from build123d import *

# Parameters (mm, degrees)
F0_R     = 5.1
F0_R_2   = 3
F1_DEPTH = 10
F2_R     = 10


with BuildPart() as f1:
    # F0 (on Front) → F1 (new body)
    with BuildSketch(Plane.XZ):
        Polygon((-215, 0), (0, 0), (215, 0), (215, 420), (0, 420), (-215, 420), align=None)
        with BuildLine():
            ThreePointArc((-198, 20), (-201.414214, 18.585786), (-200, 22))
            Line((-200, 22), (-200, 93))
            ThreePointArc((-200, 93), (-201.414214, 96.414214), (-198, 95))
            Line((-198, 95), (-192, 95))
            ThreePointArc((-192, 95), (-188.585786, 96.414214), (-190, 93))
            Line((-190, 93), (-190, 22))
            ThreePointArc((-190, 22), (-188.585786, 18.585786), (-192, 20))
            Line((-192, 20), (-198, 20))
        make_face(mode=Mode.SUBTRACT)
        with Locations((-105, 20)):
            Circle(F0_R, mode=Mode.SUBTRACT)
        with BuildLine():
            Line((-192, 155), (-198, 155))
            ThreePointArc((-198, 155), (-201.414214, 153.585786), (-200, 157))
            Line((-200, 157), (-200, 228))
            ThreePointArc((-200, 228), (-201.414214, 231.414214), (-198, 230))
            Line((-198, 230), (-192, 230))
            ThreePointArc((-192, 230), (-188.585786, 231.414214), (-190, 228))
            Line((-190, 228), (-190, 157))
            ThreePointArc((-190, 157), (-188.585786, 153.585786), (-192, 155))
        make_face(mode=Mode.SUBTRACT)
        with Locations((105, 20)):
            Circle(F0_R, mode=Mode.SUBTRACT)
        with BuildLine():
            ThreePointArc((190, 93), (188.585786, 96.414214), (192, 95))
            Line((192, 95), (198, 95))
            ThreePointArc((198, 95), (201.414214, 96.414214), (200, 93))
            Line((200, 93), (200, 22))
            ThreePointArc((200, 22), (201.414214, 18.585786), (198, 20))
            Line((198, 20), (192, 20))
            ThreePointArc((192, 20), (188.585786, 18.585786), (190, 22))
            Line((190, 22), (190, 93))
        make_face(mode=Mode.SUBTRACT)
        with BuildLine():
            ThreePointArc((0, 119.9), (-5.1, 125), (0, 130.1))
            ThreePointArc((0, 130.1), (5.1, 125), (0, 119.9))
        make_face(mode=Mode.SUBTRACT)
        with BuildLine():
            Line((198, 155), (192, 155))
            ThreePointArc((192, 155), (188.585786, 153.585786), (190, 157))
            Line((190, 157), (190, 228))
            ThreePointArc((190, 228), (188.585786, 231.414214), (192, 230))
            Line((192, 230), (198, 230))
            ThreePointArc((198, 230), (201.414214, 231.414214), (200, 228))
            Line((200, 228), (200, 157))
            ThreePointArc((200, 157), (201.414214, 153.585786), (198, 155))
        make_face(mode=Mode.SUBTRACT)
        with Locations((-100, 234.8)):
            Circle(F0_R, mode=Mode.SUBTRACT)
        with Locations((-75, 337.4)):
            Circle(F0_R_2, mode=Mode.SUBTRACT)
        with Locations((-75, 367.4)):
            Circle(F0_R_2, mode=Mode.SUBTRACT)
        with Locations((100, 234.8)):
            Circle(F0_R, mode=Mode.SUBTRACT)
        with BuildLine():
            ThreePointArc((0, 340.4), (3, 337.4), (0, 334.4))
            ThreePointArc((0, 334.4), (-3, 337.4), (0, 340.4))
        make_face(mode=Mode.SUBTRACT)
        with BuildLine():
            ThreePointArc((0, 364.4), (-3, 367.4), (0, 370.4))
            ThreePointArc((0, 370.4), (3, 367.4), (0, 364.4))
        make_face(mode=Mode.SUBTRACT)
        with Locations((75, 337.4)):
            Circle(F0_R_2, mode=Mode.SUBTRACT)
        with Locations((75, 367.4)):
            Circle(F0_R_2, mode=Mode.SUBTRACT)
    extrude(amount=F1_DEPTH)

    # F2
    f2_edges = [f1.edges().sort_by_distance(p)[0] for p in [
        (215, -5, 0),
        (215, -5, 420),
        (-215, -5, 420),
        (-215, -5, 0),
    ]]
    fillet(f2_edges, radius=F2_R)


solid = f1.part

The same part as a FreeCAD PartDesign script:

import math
import FreeCAD as App
import Part
import Sketcher
Q = App.Units.Quantity


def edges_at(feature, points):
    """Names of the edges that pass closest to the given points."""
    edges = feature.Shape.Edges
    near = lambda p: min(range(len(edges)), key=lambda i: edges[i].distToShape(Part.Vertex(*p))[0])
    return sorted({f"Edge{near(p) + 1}" for p in points})

doc = App.newDocument("Part")
body = doc.addObject("PartDesign::Body", "Body")

sketch1 = doc.addObject("Sketcher::SketchObject", "Sketch")
body.addObject(sketch1)
sketch1.AttachmentSupport = (doc.XZ_Plane, [""])
sketch1.MapMode = "FlatFace"
sketch1.addGeometry(Part.LineSegment(App.Vector(-215, 0, 0), App.Vector(215, 0, 0)), False)
sketch1.addGeometry(Part.LineSegment(App.Vector(215, 0, 0), App.Vector(215, 420, 0)), False)
sketch1.addGeometry(Part.LineSegment(App.Vector(215, 420, 0), App.Vector(-215, 420, 0)), False)
sketch1.addGeometry(Part.LineSegment(App.Vector(-215, 420, 0), App.Vector(-215, 0, 0)), False)
sketch1.addGeometry(Part.LineSegment(App.Vector(-192, 20, 0), App.Vector(-198, 20, 0)), False)
sketch1.addGeometry(Part.ArcOfCircle(Part.Circle(App.Vector(-200, 20, 0), App.Vector(0, 0, 1), 2), math.radians(90), math.radians(360)), False)
sketch1.addGeometry(Part.LineSegment(App.Vector(-200, 22, 0), App.Vector(-200, 93, 0)), False)
sketch1.addGeometry(Part.ArcOfCircle(Part.Circle(App.Vector(-200, 95, 0), App.Vector(0, 0, 1), 2), math.radians(0), math.radians(270)), False)
sketch1.addGeometry(Part.LineSegment(App.Vector(-198, 95, 0), App.Vector(-192, 95, 0)), False)
sketch1.addGeometry(Part.ArcOfCircle(Part.Circle(App.Vector(-190, 95, 0), App.Vector(0, 0, 1), 2), math.radians(-90), math.radians(180)), False)
sketch1.addGeometry(Part.LineSegment(App.Vector(-190, 93, 0), App.Vector(-190, 22, 0)), False)
sketch1.addGeometry(Part.ArcOfCircle(Part.Circle(App.Vector(-190, 20, 0), App.Vector(0, 0, 1), 2), math.radians(180), math.radians(450)), False)
sketch1.addGeometry(Part.Circle(App.Vector(-105, 20, 0), App.Vector(0, 0, 1), 5.1), False)
sketch1.addGeometry(Part.ArcOfCircle(Part.Circle(App.Vector(-190, 155, 0), App.Vector(0, 0, 1), 2), math.radians(180), math.radians(450)), False)
sketch1.addGeometry(Part.LineSegment(App.Vector(-192, 155, 0), App.Vector(-198, 155, 0)), False)
sketch1.addGeometry(Part.ArcOfCircle(Part.Circle(App.Vector(-200, 155, 0), App.Vector(0, 0, 1), 2), math.radians(90), math.radians(360)), False)
sketch1.addGeometry(Part.LineSegment(App.Vector(-200, 157, 0), App.Vector(-200, 228, 0)), False)
sketch1.addGeometry(Part.ArcOfCircle(Part.Circle(App.Vector(-200, 230, 0), App.Vector(0, 0, 1), 2), math.radians(0), math.radians(270)), False)
sketch1.addGeometry(Part.LineSegment(App.Vector(-198, 230, 0), App.Vector(-192, 230, 0)), False)
sketch1.addGeometry(Part.ArcOfCircle(Part.Circle(App.Vector(-190, 230, 0), App.Vector(0, 0, 1), 2), math.radians(-90), math.radians(180)), False)
sketch1.addGeometry(Part.LineSegment(App.Vector(-190, 228, 0), App.Vector(-190, 157, 0)), False)
sketch1.addGeometry(Part.Circle(App.Vector(105, 20, 0), App.Vector(0, 0, 1), 5.1), False)
sketch1.addGeometry(Part.LineSegment(App.Vector(190, 22, 0), App.Vector(190, 93, 0)), False)
sketch1.addGeometry(Part.ArcOfCircle(Part.Circle(App.Vector(190, 95, 0), App.Vector(0, 0, 1), 2), math.radians(0), math.radians(270)), False)
sketch1.addGeometry(Part.LineSegment(App.Vector(192, 95, 0), App.Vector(198, 95, 0)), False)
sketch1.addGeometry(Part.ArcOfCircle(Part.Circle(App.Vector(200, 95, 0), App.Vector(0, 0, 1), 2), math.radians(-90), math.radians(180)), False)
sketch1.addGeometry(Part.LineSegment(App.Vector(200, 93, 0), App.Vector(200, 22, 0)), False)
sketch1.addGeometry(Part.ArcOfCircle(Part.Circle(App.Vector(200, 20, 0), App.Vector(0, 0, 1), 2), math.radians(180), math.radians(450)), False)
sketch1.addGeometry(Part.LineSegment(App.Vector(198, 20, 0), App.Vector(192, 20, 0)), False)
sketch1.addGeometry(Part.ArcOfCircle(Part.Circle(App.Vector(190, 20, 0), App.Vector(0, 0, 1), 2), math.radians(90), math.radians(360)), False)
sketch1.addGeometry(Part.Circle(App.Vector(0, 125, 0), App.Vector(0, 0, 1), 5.1), False)
sketch1.addGeometry(Part.ArcOfCircle(Part.Circle(App.Vector(200, 155, 0), App.Vector(0, 0, 1), 2), math.radians(180), math.radians(450)), False)
sketch1.addGeometry(Part.LineSegment(App.Vector(198, 155, 0), App.Vector(192, 155, 0)), False)
sketch1.addGeometry(Part.ArcOfCircle(Part.Circle(App.Vector(190, 155, 0), App.Vector(0, 0, 1), 2), math.radians(90), math.radians(360)), False)
sketch1.addGeometry(Part.LineSegment(App.Vector(190, 157, 0), App.Vector(190, 228, 0)), False)
sketch1.addGeometry(Part.ArcOfCircle(Part.Circle(App.Vector(190, 230, 0), App.Vector(0, 0, 1), 2), math.radians(0), math.radians(270)), False)
sketch1.addGeometry(Part.LineSegment(App.Vector(192, 230, 0), App.Vector(198, 230, 0)), False)
sketch1.addGeometry(Part.ArcOfCircle(Part.Circle(App.Vector(200, 230, 0), App.Vector(0, 0, 1), 2), math.radians(-90), math.radians(180)), False)
sketch1.addGeometry(Part.LineSegment(App.Vector(200, 228, 0), App.Vector(200, 157, 0)), False)
sketch1.addGeometry(Part.Circle(App.Vector(-100, 234.8, 0), App.Vector(0, 0, 1), 5.1), False)
sketch1.addGeometry(Part.Circle(App.Vector(-75, 337.4, 0), App.Vector(0, 0, 1), 3), False)
sketch1.addGeometry(Part.Circle(App.Vector(-75, 367.4, 0), App.Vector(0, 0, 1), 3), False)
sketch1.addGeometry(Part.Circle(App.Vector(100, 234.8, 0), App.Vector(0, 0, 1), 5.1), False)
sketch1.addGeometry(Part.Circle(App.Vector(0, 337.4, 0), App.Vector(0, 0, 1), 3), False)
sketch1.addGeometry(Part.Circle(App.Vector(0, 367.4, 0), App.Vector(0, 0, 1), 3), False)
sketch1.addGeometry(Part.Circle(App.Vector(75, 337.4, 0), App.Vector(0, 0, 1), 3), False)
sketch1.addGeometry(Part.Circle(App.Vector(75, 367.4, 0), App.Vector(0, 0, 1), 3), False)
sketch1.addConstraint(Sketcher.Constraint("Coincident", 0, 2, 1, 1))
sketch1.addConstraint(Sketcher.Constraint("Coincident", 1, 2, 2, 1))
sketch1.addConstraint(Sketcher.Constraint("Coincident", 2, 2, 3, 1))
sketch1.addConstraint(Sketcher.Constraint("Coincident", 3, 2, 0, 1))
sketch1.addConstraint(Sketcher.Constraint("Coincident", 4, 2, 5, 2))
sketch1.addConstraint(Sketcher.Constraint("Coincident", 5, 1, 6, 1))
sketch1.addConstraint(Sketcher.Constraint("Coincident", 6, 2, 7, 2))
sketch1.addConstraint(Sketcher.Constraint("Coincident", 7, 1, 8, 1))
sketch1.addConstraint(Sketcher.Constraint("Coincident", 8, 2, 9, 2))
sketch1.addConstraint(Sketcher.Constraint("Coincident", 9, 1, 10, 1))
sketch1.addConstraint(Sketcher.Constraint("Coincident", 10, 2, 11, 2))
sketch1.addConstraint(Sketcher.Constraint("Coincident", 11, 1, 4, 1))
sketch1.addConstraint(Sketcher.Constraint("Coincident", 13, 1, 14, 1))
sketch1.addConstraint(Sketcher.Constraint("Coincident", 14, 2, 15, 2))
sketch1.addConstraint(Sketcher.Constraint("Coincident", 15, 1, 16, 1))
sketch1.addConstraint(Sketcher.Constraint("Coincident", 16, 2, 17, 2))
sketch1.addConstraint(Sketcher.Constraint("Coincident", 17, 1, 18, 1))
sketch1.addConstraint(Sketcher.Constraint("Coincident", 18, 2, 19, 2))
sketch1.addConstraint(Sketcher.Constraint("Coincident", 19, 1, 20, 1))
sketch1.addConstraint(Sketcher.Constraint("Coincident", 20, 2, 13, 2))
sketch1.addConstraint(Sketcher.Constraint("Coincident", 22, 2, 23, 2))
sketch1.addConstraint(Sketcher.Constraint("Coincident", 23, 1, 24, 1))
sketch1.addConstraint(Sketcher.Constraint("Coincident", 24, 2, 25, 2))
sketch1.addConstraint(Sketcher.Constraint("Coincident", 25, 1, 26, 1))
sketch1.addConstraint(Sketcher.Constraint("Coincident", 26, 2, 27, 2))
sketch1.addConstraint(Sketcher.Constraint("Coincident", 27, 1, 28, 1))
sketch1.addConstraint(Sketcher.Constraint("Coincident", 28, 2, 29, 2))
sketch1.addConstraint(Sketcher.Constraint("Coincident", 29, 1, 22, 1))
sketch1.addConstraint(Sketcher.Constraint("Coincident", 31, 1, 32, 1))
sketch1.addConstraint(Sketcher.Constraint("Coincident", 32, 2, 33, 2))
sketch1.addConstraint(Sketcher.Constraint("Coincident", 33, 1, 34, 1))
sketch1.addConstraint(Sketcher.Constraint("Coincident", 34, 2, 35, 2))
sketch1.addConstraint(Sketcher.Constraint("Coincident", 35, 1, 36, 1))
sketch1.addConstraint(Sketcher.Constraint("Coincident", 36, 2, 37, 2))
sketch1.addConstraint(Sketcher.Constraint("Coincident", 37, 1, 38, 1))
sketch1.addConstraint(Sketcher.Constraint("Coincident", 38, 2, 31, 2))
sketch1.addConstraint(Sketcher.Constraint("Horizontal", 0))
sketch1.addConstraint(Sketcher.Constraint("Vertical", 1))
sketch1.addConstraint(Sketcher.Constraint("Horizontal", 2))
sketch1.addConstraint(Sketcher.Constraint("Vertical", 3))
sketch1.addConstraint(Sketcher.Constraint("Horizontal", 4))
sketch1.addConstraint(Sketcher.Constraint("Vertical", 6))
sketch1.addConstraint(Sketcher.Constraint("Horizontal", 8))
sketch1.addConstraint(Sketcher.Constraint("Vertical", 10))
sketch1.addConstraint(Sketcher.Constraint("Horizontal", 14))
sketch1.addConstraint(Sketcher.Constraint("Vertical", 16))
sketch1.addConstraint(Sketcher.Constraint("Horizontal", 18))
sketch1.addConstraint(Sketcher.Constraint("Vertical", 20))
sketch1.addConstraint(Sketcher.Constraint("Vertical", 22))
sketch1.addConstraint(Sketcher.Constraint("Horizontal", 24))
sketch1.addConstraint(Sketcher.Constraint("Vertical", 26))
sketch1.addConstraint(Sketcher.Constraint("Horizontal", 28))
sketch1.addConstraint(Sketcher.Constraint("Horizontal", 32))
sketch1.addConstraint(Sketcher.Constraint("Vertical", 34))
sketch1.addConstraint(Sketcher.Constraint("Horizontal", 36))
sketch1.addConstraint(Sketcher.Constraint("Vertical", 38))
sketch1.addConstraint(Sketcher.Constraint("Equal", 5, 7))
sketch1.addConstraint(Sketcher.Constraint("Equal", 7, 9))
sketch1.addConstraint(Sketcher.Constraint("Equal", 9, 11))
sketch1.addConstraint(Sketcher.Constraint("Equal", 11, 13))
sketch1.addConstraint(Sketcher.Constraint("Equal", 13, 15))
sketch1.addConstraint(Sketcher.Constraint("Equal", 15, 17))
sketch1.addConstraint(Sketcher.Constraint("Equal", 17, 19))
sketch1.addConstraint(Sketcher.Constraint("Equal", 12, 21))
sketch1.addConstraint(Sketcher.Constraint("Equal", 19, 23))
sketch1.addConstraint(Sketcher.Constraint("Equal", 23, 25))
sketch1.addConstraint(Sketcher.Constraint("Equal", 25, 27))
sketch1.addConstraint(Sketcher.Constraint("Equal", 27, 29))
sketch1.addConstraint(Sketcher.Constraint("Equal", 21, 30))
sketch1.addConstraint(Sketcher.Constraint("Equal", 29, 31))
sketch1.addConstraint(Sketcher.Constraint("Equal", 31, 33))
sketch1.addConstraint(Sketcher.Constraint("Equal", 33, 35))
sketch1.addConstraint(Sketcher.Constraint("Equal", 35, 37))
sketch1.addConstraint(Sketcher.Constraint("Equal", 30, 39))
sketch1.addConstraint(Sketcher.Constraint("Equal", 40, 41))
sketch1.addConstraint(Sketcher.Constraint("Equal", 39, 42))
sketch1.addConstraint(Sketcher.Constraint("Equal", 41, 43))
sketch1.addConstraint(Sketcher.Constraint("Equal", 43, 44))
sketch1.addConstraint(Sketcher.Constraint("Equal", 44, 45))
sketch1.addConstraint(Sketcher.Constraint("Equal", 45, 46))
sketch1.addConstraint(Sketcher.Constraint("Symmetric", 0, 2, 3, 2, -1, 1))
sketch1.addConstraint(Sketcher.Constraint("Symmetric", 12, 3, 21, 3, -2))
sketch1.addConstraint(Sketcher.Constraint("Symmetric", 9, 3, 23, 3, -2))
sketch1.addConstraint(Sketcher.Constraint("Symmetric", 7, 3, 25, 3, -2))
sketch1.addConstraint(Sketcher.Constraint("Symmetric", 5, 3, 27, 3, -2))
sketch1.addConstraint(Sketcher.Constraint("Symmetric", 11, 3, 29, 3, -2))
sketch1.addConstraint(Sketcher.Constraint("Symmetric", 15, 3, 31, 3, -2))
sketch1.addConstraint(Sketcher.Constraint("Symmetric", 13, 3, 33, 3, -2))
sketch1.addConstraint(Sketcher.Constraint("Symmetric", 19, 3, 35, 3, -2))
sketch1.addConstraint(Sketcher.Constraint("Symmetric", 17, 3, 37, 3, -2))
sketch1.addConstraint(Sketcher.Constraint("Symmetric", 39, 3, 42, 3, -2))
sketch1.addConstraint(Sketcher.Constraint("Symmetric", 40, 3, 45, 3, -2))
sketch1.addConstraint(Sketcher.Constraint("Symmetric", 41, 3, 46, 3, -2))
sketch1.addConstraint(Sketcher.Constraint("PointOnObject", 30, 3, -2))
sketch1.addConstraint(Sketcher.Constraint("PointOnObject", 43, 3, -2))
sketch1.addConstraint(Sketcher.Constraint("PointOnObject", 44, 3, -2))
sketch1.addConstraint(Sketcher.Constraint("Horizontal", 7, 3, 9, 3))
sketch1.addConstraint(Sketcher.Constraint("Horizontal", 5, 3, 11, 3))
sketch1.addConstraint(Sketcher.Constraint("Horizontal", 11, 3, 12, 3))
sketch1.addConstraint(Sketcher.Constraint("Horizontal", 13, 3, 15, 3))
sketch1.addConstraint(Sketcher.Constraint("Horizontal", 17, 3, 19, 3))
sketch1.addConstraint(Sketcher.Constraint("Horizontal", 40, 3, 43, 3))
sketch1.addConstraint(Sketcher.Constraint("Horizontal", 41, 3, 44, 3))
sketch1.addConstraint(Sketcher.Constraint("Horizontal", 29, 3, 4, 2))
sketch1.addConstraint(Sketcher.Constraint("Horizontal", 25, 3, 7, 1))
sketch1.addConstraint(Sketcher.Constraint("Horizontal", 33, 3, 13, 1))
sketch1.addConstraint(Sketcher.Constraint("Horizontal", 37, 3, 17, 1))
sketch1.addConstraint(Sketcher.Constraint("Horizontal", 8, 2, 23, 1))
sketch1.addConstraint(Sketcher.Constraint("Horizontal", 11, 1, 27, 1))
sketch1.addConstraint(Sketcher.Constraint("Horizontal", 14, 2, 31, 1))
sketch1.addConstraint(Sketcher.Constraint("Horizontal", 18, 2, 35, 1))
sketch1.addConstraint(Sketcher.Constraint("Vertical", 5, 3, 7, 3))
sketch1.addConstraint(Sketcher.Constraint("Vertical", 9, 3, 11, 3))
sketch1.addConstraint(Sketcher.Constraint("Vertical", 11, 3, 13, 3))
sketch1.addConstraint(Sketcher.Constraint("Vertical", 7, 3, 15, 3))
sketch1.addConstraint(Sketcher.Constraint("Vertical", 15, 3, 17, 3))
sketch1.addConstraint(Sketcher.Constraint("Vertical", 13, 3, 19, 3))
sketch1.addConstraint(Sketcher.Constraint("Vertical", 40, 3, 41, 3))
sketch1.addConstraint(Sketcher.Constraint("Vertical", 17, 3, 5, 1))
sketch1.addConstraint(Sketcher.Constraint("Vertical", 19, 3, 9, 1))
sketch1.addConstraint(Sketcher.Constraint("Vertical", 6, 2, 15, 1))
sketch1.addConstraint(Sketcher.Constraint("Vertical", 10, 2, 19, 1))
sketch1.addConstraint(Sketcher.Constraint("Vertical", 35, 3, 22, 2))
sketch1.addConstraint(Sketcher.Constraint("Vertical", 37, 3, 25, 1))
sketch1.addConstraint(Sketcher.Constraint("Vertical", 29, 1, 33, 1))
sketch1.addConstraint(Sketcher.Constraint("Vertical", 26, 2, 37, 1))
sketch1.addConstraint(Sketcher.Constraint("Equal", 10, 16))
sketch1.addConstraint(Sketcher.Constraint("Diameter", 40, Q("6 mm")))
sketch1.addConstraint(Sketcher.Constraint("Radius", 5, Q("2 mm")))
sketch1.addConstraint(Sketcher.Constraint("Diameter", 12, Q("10.2 mm")))
sketch1.addConstraint(Sketcher.Constraint("DistanceX", 0, 1, 0, 2, Q("430 mm")))
sketch1.addConstraint(Sketcher.Constraint("DistanceX", 4, 2, 4, 1, Q("6 mm")))
sketch1.addConstraint(Sketcher.Constraint("DistanceY", 1, 1, 1, 2, Q("420 mm")))
sketch1.addConstraint(Sketcher.Constraint("DistanceY", 6, 1, 6, 2, Q("71 mm")))
sketch1.addConstraint(Sketcher.Constraint("DistanceX", 5, 3, -1, 1, Q("200 mm")))
sketch1.addConstraint(Sketcher.Constraint("DistanceY", -1, 1, 5, 3, Q("20 mm")))
sketch1.addConstraint(Sketcher.Constraint("DistanceX", 12, 3, -1, 1, Q("105 mm")))
sketch1.addConstraint(Sketcher.Constraint("DistanceY", -1, 1, 13, 3, Q("155 mm")))
sketch1.addConstraint(Sketcher.Constraint("DistanceY", -1, 1, 30, 3, Q("125 mm")))
sketch1.addConstraint(Sketcher.Constraint("DistanceX", 39, 3, -1, 1, Q("100 mm")))
sketch1.addConstraint(Sketcher.Constraint("DistanceX", 40, 3, -1, 1, Q("75 mm")))
sketch1.addConstraint(Sketcher.Constraint("DistanceY", -1, 1, 39, 3, Q("234.8 mm")))
sketch1.addConstraint(Sketcher.Constraint("DistanceY", -1, 1, 40, 3, Q("337.4 mm")))
sketch1.addConstraint(Sketcher.Constraint("DistanceY", -1, 1, 41, 3, Q("367.4 mm")))
pad1 = doc.addObject("PartDesign::Pad", "Pad")
body.addObject(pad1)
pad1.Profile = sketch1
pad1.Length = 10
doc.recompute()

fillet = doc.addObject("PartDesign::Fillet", "Fillet")
body.addObject(fillet)
fillet.Base = (pad1, edges_at(pad1, [
    (215, -5, 0),
    (215, -5, 420),
    (-215, -5, 420),
    (-215, -5, 0),
]))
fillet.Radius = 10

doc.recompute()
